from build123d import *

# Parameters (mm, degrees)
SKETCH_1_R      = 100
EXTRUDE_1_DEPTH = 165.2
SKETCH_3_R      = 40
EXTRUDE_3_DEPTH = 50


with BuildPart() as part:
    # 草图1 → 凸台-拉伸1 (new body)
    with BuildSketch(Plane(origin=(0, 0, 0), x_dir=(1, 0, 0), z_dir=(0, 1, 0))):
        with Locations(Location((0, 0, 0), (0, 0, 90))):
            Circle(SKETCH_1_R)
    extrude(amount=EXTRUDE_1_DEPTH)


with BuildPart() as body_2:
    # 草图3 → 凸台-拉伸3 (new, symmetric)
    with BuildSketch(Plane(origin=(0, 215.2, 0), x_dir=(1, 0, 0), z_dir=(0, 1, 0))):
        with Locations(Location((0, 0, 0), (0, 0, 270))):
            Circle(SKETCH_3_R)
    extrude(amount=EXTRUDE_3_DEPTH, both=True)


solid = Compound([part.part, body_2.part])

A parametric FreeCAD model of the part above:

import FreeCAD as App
import Part
import Sketcher
from FreeCAD import Vector

doc = App.newDocument("Part")
body = doc.addObject("PartDesign::Body", "Body")

# Sketch on XZ plane
sketch1 = body.newObject("Sketcher::SketchObject", "Sketch")
sketch1.AttachmentSupport = (doc.getObject("XZ_Plane"), [""])
sketch1.MapMode = "FlatFace"
sketch1.addGeometry(Part.Circle(Vector(0, 0, 0), Vector(0, 0, 1), 100), False)
sketch1.addConstraint([
    Sketcher.Constraint("Coincident", 0, 3, -1, 1),
    Sketcher.Constraint("Diameter", 0, 200.0),
])
pad1 = body.newObject("PartDesign::Pad", "Pad")
pad1.Profile = sketch1
pad1.Length = 165.2
pad1.Reversed = True
body2 = doc.addObject("PartDesign::Body", "Body001")

# Sketch on XZ plane
sketch2 = body2.newObject("Sketcher::SketchObject", "Sketch001")
sketch2.AttachmentSupport = (doc.getObject("XZ_Plane001"), [""])
sketch2.MapMode = "FlatFace"
sketch2.AttachmentOffset = App.Placement(Vector(0, 0, -215.2), App.Rotation())
sketch2.addGeometry(Part.Circle(Vector(0, 0, 0), Vector(0, 0, 1), 40), False)
sketch2.addConstraint([
    Sketcher.Constraint("Coincident", 0, 3, -1, 1),
    Sketcher.Constraint("Diameter", 0, 80.0),
])
pad2 = body2.newObject("PartDesign::Pad", "Pad001")
pad2.Profile = sketch2
pad2.Length = 100
pad2.Midplane = True

doc.recompute()
